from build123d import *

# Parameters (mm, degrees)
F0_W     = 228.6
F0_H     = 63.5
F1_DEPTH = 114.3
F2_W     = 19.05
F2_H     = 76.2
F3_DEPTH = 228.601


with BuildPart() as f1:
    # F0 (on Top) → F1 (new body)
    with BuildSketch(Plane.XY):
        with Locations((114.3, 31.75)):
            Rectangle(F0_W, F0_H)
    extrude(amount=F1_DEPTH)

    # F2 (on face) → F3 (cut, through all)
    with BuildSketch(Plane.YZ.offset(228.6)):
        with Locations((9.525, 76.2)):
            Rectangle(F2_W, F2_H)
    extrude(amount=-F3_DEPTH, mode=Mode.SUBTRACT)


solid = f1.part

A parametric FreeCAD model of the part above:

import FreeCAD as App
import Part
import Sketcher
from FreeCAD import Vector
Q = App.Units.Quantity

doc = App.newDocument("Part")
body = doc.addObject("PartDesign::Body", "Body")

# Sketch on XY plane
sketch1 = doc.addObject("Sketcher::SketchObject", "Sketch")
body.addObject(sketch1)
sketch1.AttachmentSupport = (doc.XY_Plane, [""])
sketch1.MapMode = "FlatFace"
sketch1.addGeometry([
    Part.LineSegment(Vector(0, 64, 0), Vector(0, 0, 0)),
    Part.LineSegment(Vector(0, 0, 0), Vector(229, 0, 0)),
    Part.LineSegment(Vector(229, 0, 0), Vector(229, 64, 0)),
    Part.LineSegment(Vector(229, 64, 0), Vector(0, 64, 0)),
], False)
sketch1.addConstraint([
    Sketcher.Constraint("Coincident", 0, 2, 1, 1),
    Sketcher.Constraint("Coincident", 1, 2, 2, 1),
    Sketcher.Constraint("Coincident", 2, 2, 3, 1),
    Sketcher.Constraint("Coincident", 3, 2, 0, 1),
    Sketcher.Constraint("Vertical", 0),
    Sketcher.Constraint("Horizontal", 1),
    Sketcher.Constraint("Vertical", 2),
    Sketcher.Constraint("Horizontal", 3),
    Sketcher.Constraint("Coincident", 0, 2, -1, 1),
    Sketcher.Constraint("DistanceX", 1, 1, 1, 2, Q("9 in")),
    Sketcher.Constraint("DistanceY", 0, 2, 0, 1, Q("2.5 in")),
])
pad1 = doc.addObject("PartDesign::Pad", "Pad")
body.addObject(pad1)
pad1.Profile = sketch1
pad1.Length = Q("4.5 in")

# Sketch on YZ plane
sketch2 = doc.addObject("Sketcher::SketchObject", "Sketch001")
body.addObject(sketch2)
sketch2.AttachmentSupport = (doc.YZ_Plane, [""])
sketch2.MapMode = "FlatFace"
sketch2.AttachmentOffset = App.Placement(Vector(0, 0, 9 * 25.4), App.Rotation())
sketch2.addGeometry([
    Part.LineSegment(Vector(0, 114, 0), Vector(0, 38, 0)),
    Part.LineSegment(Vector(0, 38, 0), Vector(19, 38, 0)),
    Part.LineSegment(Vector(19, 38, 0), Vector(19, 114, 0)),
    Part.LineSegment(Vector(19, 114, 0), Vector(0, 114, 0)),
], False)
sketch2.addConstraint([
    Sketcher.Constraint("Coincident", 0, 2, 1, 1),
    Sketcher.Constraint("Coincident", 1, 2, 2, 1),
    Sketcher.Constraint("Coincident", 2, 2, 3, 1),
    Sketcher.Constraint("Coincident", 3, 2, 0, 1),
    Sketcher.Constraint("Vertical", 0),
    Sketcher.Constraint("Horizontal", 1),
    Sketcher.Constraint("Vertical", 2),
    Sketcher.Constraint("Horizontal", 3),
    Sketcher.Constraint("PointOnObject", 0, 2, -2),
    Sketcher.Constraint("DistanceY", 0, 2, 0, 1, Q("3 in")),
    Sketcher.Constraint("DistanceX", 1, 1, 1, 2, Q("0.75 in")),
    Sketcher.Constraint("DistanceY", -1, 1, 0, 2, Q("1.5 in")),
])
pocket1 = doc.addObject("PartDesign::Pocket", "Pocket")
body.addObject(pocket1)
pocket1.Profile = sketch2
pocket1.Type = "ThroughAll"

doc.recompute()
